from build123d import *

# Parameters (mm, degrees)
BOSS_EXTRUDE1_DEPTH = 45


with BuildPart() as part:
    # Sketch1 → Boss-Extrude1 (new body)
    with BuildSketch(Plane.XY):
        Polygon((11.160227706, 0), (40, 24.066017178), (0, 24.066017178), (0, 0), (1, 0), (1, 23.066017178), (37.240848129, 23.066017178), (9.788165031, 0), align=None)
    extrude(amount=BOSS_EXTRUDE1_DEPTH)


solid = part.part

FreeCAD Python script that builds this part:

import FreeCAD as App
import Part
import Sketcher
Q = App.Units.Quantity

doc = App.newDocument("Part")
body = doc.addObject("PartDesign::Body", "Body")

sketch1 = doc.addObject("Sketcher::SketchObject", "Sketch")
body.addObject(sketch1)
sketch1.AttachmentSupport = (doc.XY_Plane, [""])
sketch1.MapMode = "FlatFace"
sketch1.addGeometry(Part.LineSegment(App.Vector(11.2, 0, 0), App.Vector(40, 24.1, 0)), False)
sketch1.addGeometry(Part.LineSegment(App.Vector(40, 24.1, 0), App.Vector(0, 24.1, 0)), False)
sketch1.addGeometry(Part.LineSegment(App.Vector(0, 24.1, 0), App.Vector(0, 0, 0)), False)
sketch1.addGeometry(Part.LineSegment(App.Vector(0, 0, 0), App.Vector(1, 0, 0)), False)
sketch1.addGeometry(Part.LineSegment(App.Vector(1, 0, 0), App.Vector(1, 23.1, 0)), False)
sketch1.addGeometry(Part.LineSegment(App.Vector(1, 23.1, 0), App.Vector(37.2, 23.1, 0)), False)
sketch1.addGeometry(Part.LineSegment(App.Vector(37.2, 23.1, 0), App.Vector(9.8, 0, 0)), False)
sketch1.addGeometry(Part.LineSegment(App.Vector(9.8, 0, 0), App.Vector(11.2, 0, 0)), False)
sketch1.addConstraint(Sketcher.Constraint("Coincident", 0, 2, 1, 1))
sketch1.addConstraint(Sketcher.Constraint("Coincident", 1, 2, 2, 1))
sketch1.addConstraint(Sketcher.Constraint("Coincident", 2, 2, 3, 1))
sketch1.addConstraint(Sketcher.Constraint("Coincident", 3, 2, 4, 1))
sketch1.addConstraint(Sketcher.Constraint("Coincident", 4, 2, 5, 1))
sketch1.addConstraint(Sketcher.Constraint("Coincident", 5, 2, 6, 1))
sketch1.addConstraint(Sketcher.Constraint("Coincident", 6, 2, 7, 1))
sketch1.addConstraint(Sketcher.Constraint("Coincident", 7, 2, 0, 1))
sketch1.addConstraint(Sketcher.Constraint("Horizontal", 1))
sketch1.addConstraint(Sketcher.Constraint("Vertical", 2))
sketch1.addConstraint(Sketcher.Constraint("Horizontal", 3))
sketch1.addConstraint(Sketcher.Constraint("Vertical", 4))
sketch1.addConstraint(Sketcher.Constraint("Horizontal", 5))
sketch1.addConstraint(Sketcher.Constraint("Horizontal", 7))
sketch1.addConstraint(Sketcher.Constraint("Coincident", 2, 2, -1, 1))
sketch1.addConstraint(Sketcher.Constraint("PointOnObject", 6, 2, -1))
sketch1.addConstraint(Sketcher.Constraint("DistanceX", 1, 2, 1, 1, Q("40 mm")))
sketch1.addConstraint(Sketcher.Constraint("DistanceX", 3, 1, 3, 2, Q("1 mm")))
sketch1.addConstraint(Sketcher.Constraint("DistanceY", 4, 2, 1, 2, Q("1 mm")))
sketch1.addConstraint(Sketcher.Constraint("DistanceX", 5, 1, 5, 2, Q("36.240848 mm")))
sketch1.addConstraint(Sketcher.Constraint("DistanceX", 7, 1, 7, 2, Q("1.372063 mm")))
sketch1.addConstraint(Sketcher.Constraint("DistanceY", 2, 2, 2, 1, Q("24.066017 mm")))
sketch1.addConstraint(Sketcher.Constraint("Distance", 0, Q("37.562024 mm")))
pad1 = doc.addObject("PartDesign::Pad", "Pad")
body.addObject(pad1)
pad1.Profile = sketch1
pad1.Length = 45

doc.recompute()
